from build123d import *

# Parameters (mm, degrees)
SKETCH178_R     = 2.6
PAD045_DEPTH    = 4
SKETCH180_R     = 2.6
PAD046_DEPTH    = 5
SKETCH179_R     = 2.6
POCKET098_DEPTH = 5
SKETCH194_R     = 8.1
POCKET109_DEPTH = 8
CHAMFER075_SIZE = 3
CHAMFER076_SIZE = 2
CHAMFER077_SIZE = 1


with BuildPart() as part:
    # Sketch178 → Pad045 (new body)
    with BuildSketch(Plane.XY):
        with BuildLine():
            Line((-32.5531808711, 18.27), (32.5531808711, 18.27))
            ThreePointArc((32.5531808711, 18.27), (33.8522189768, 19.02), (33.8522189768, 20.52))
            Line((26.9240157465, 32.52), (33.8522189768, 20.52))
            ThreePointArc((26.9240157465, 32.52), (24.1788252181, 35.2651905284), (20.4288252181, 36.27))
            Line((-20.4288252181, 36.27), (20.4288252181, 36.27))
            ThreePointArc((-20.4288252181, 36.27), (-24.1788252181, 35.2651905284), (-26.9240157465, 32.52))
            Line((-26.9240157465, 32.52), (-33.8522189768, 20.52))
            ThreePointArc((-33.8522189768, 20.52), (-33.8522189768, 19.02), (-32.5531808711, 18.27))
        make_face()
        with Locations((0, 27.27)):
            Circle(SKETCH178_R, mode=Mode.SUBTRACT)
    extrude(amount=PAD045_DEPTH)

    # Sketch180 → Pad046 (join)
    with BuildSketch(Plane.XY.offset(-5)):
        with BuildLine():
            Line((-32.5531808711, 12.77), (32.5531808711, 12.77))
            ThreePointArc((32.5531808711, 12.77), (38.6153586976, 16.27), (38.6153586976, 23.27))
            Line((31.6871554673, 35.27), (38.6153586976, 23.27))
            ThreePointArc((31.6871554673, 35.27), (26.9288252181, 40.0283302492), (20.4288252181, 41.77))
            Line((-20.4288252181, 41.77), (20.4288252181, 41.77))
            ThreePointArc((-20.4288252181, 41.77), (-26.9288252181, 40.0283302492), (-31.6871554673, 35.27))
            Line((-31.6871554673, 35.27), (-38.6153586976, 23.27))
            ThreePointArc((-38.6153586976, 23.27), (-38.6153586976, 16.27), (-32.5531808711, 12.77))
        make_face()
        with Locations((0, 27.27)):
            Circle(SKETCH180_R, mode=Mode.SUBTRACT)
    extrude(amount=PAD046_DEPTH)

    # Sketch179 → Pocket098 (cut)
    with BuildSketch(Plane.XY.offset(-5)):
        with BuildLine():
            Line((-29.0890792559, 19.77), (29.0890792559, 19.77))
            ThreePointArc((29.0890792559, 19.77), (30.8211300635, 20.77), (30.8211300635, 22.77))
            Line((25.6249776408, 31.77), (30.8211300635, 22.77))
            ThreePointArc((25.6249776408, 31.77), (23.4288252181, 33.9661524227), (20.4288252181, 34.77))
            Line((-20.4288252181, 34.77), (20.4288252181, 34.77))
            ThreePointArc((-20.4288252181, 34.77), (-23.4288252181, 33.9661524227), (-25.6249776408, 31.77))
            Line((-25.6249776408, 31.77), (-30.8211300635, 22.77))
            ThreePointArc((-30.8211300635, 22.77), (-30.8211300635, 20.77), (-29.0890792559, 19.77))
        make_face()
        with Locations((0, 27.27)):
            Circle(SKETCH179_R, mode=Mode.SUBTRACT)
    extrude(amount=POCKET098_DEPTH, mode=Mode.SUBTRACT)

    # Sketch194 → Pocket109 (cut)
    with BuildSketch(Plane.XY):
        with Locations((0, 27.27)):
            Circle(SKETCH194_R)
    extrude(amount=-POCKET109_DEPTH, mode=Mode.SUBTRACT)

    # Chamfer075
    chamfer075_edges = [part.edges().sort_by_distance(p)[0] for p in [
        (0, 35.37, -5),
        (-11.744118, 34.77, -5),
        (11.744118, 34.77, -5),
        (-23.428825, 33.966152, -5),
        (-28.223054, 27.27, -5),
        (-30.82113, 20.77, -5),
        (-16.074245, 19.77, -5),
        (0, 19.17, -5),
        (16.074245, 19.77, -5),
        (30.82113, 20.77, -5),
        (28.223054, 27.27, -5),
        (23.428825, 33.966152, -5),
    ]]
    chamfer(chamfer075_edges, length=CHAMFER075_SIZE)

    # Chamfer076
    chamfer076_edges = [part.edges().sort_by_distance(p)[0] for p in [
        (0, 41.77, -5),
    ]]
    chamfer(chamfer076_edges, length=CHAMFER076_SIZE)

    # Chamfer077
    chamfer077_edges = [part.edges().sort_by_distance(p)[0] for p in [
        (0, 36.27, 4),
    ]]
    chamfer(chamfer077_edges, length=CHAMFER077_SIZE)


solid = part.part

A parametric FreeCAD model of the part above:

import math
import FreeCAD as App
import Part
import Sketcher
Q = App.Units.Quantity


def edges_at(feature, points):
    """Names of the edges that pass closest to the given points."""
    edges = feature.Shape.Edges
    near = lambda p: min(range(len(edges)), key=lambda i: edges[i].distToShape(Part.Vertex(*p))[0])
    return sorted({f"Edge{near(p) + 1}" for p in points})

doc = App.newDocument("Part")
body = doc.addObject("PartDesign::Body", "Body")

# Sketch on XY plane
sketch1 = doc.addObject("Sketcher::SketchObject", "Sketch")
body.addObject(sketch1)
sketch1.AttachmentSupport = (doc.XY_Plane, [""])
sketch1.MapMode = "FlatFace"
sketch1.addGeometry([
    Part.LineSegment(App.Vector(-32.553181, 18.27, 0), App.Vector(32.553181, 18.27, 0)),  # 0
    Part.ArcOfCircle(Part.Circle(App.Vector(32.553181, 19.77, 0), App.Vector(0, 0, 1), 1.5), math.radians(-90), math.radians(30)),  # 1
    Part.LineSegment(App.Vector(33.852219, 20.52, 0), App.Vector(26.924016, 32.52, 0)),  # 2
    Part.ArcOfCircle(Part.Circle(App.Vector(20.428825, 28.77, 0), App.Vector(0, 0, 1), 7.5), math.radians(30), math.radians(90)),  # 3
    Part.LineSegment(App.Vector(20.428825, 36.27, 0), App.Vector(-20.428825, 36.27, 0)),  # 4
    Part.ArcOfCircle(Part.Circle(App.Vector(-20.428825, 28.77, 0), App.Vector(0, 0, 1), 7.5), math.radians(90), math.radians(150)),  # 5
    Part.LineSegment(App.Vector(-26.924016, 32.52, 0), App.Vector(-33.852219, 20.52, 0)),  # 6
    Part.ArcOfCircle(Part.Circle(App.Vector(-32.553181, 19.77, 0), App.Vector(0, 0, 1), 1.5), math.radians(150), math.radians(270)),  # 7
    Part.Circle(App.Vector(0, 27.27, 0), App.Vector(0, 0, 1), 2.6),  # 8
], False)
sketch1.addConstraint([
    Sketcher.Constraint("Tangent", 0, 2, 1, 1),
    Sketcher.Constraint("Tangent", 1, 2, 2, 1),
    Sketcher.Constraint("Tangent", 2, 2, 3, 1),
    Sketcher.Constraint("Tangent", 3, 2, 4, 1),
    Sketcher.Constraint("Tangent", 4, 2, 5, 1),
    Sketcher.Constraint("Tangent", 5, 2, 6, 1),
    Sketcher.Constraint("Tangent", 6, 2, 7, 1),
    Sketcher.Constraint("Tangent", 7, 2, 0, 1),
    Sketcher.Constraint("Horizontal", 0),
    Sketcher.Constraint("Horizontal", 4),
    Sketcher.Constraint("Equal", 3, 5),
    Sketcher.Constraint("Equal", 1, 7),
    Sketcher.Constraint("Symmetric", 2, 2, 5, 2, -2),
    Sketcher.Constraint("PointOnObject", 8, 3, -2),
    Sketcher.Constraint("Diameter", 8, Q("5.2 mm")),
    Sketcher.Constraint("Radius", 1, Q("1.5 mm")),
    Sketcher.Constraint("Radius", 3, Q("7.5 mm")),
    Sketcher.Constraint("Angle", 2, Q("120 deg")),
    Sketcher.Constraint("DistanceY", 1, 3, 3, 3, Q("9 mm")),
    Sketcher.Constraint("DistanceY", 0, 2, 8, 3, Q("9 mm")),
    Sketcher.Constraint("DistanceY", -1, 1, 1, 3, Q("19.77 mm")),
    Sketcher.Constraint("DistanceX", 0, 1, 0, 2, Q("65.106362 mm")),
])
pad1 = doc.addObject("PartDesign::Pad", "Pad")
body.addObject(pad1)
pad1.Profile = sketch1
pad1.Length = 4

# Sketch on XY plane
sketch2 = doc.addObject("Sketcher::SketchObject", "Sketch001")
body.addObject(sketch2)
sketch2.AttachmentSupport = (doc.XY_Plane, [""])
sketch2.MapMode = "FlatFace"
sketch2.AttachmentOffset = App.Placement(App.Vector(0, 0, -5), App.Rotation())
sketch2.addGeometry([
    Part.LineSegment(App.Vector(-32.553181, 12.77, 0), App.Vector(32.553181, 12.77, 0)),  # 0
    Part.ArcOfCircle(Part.Circle(App.Vector(32.553181, 19.77, 0), App.Vector(0, 0, 1), 7), math.radians(-90), math.radians(30)),  # 1
    Part.LineSegment(App.Vector(38.615359, 23.27, 0), App.Vector(31.687155, 35.27, 0)),  # 2
    Part.ArcOfCircle(Part.Circle(App.Vector(20.428825, 28.77, 0), App.Vector(0, 0, 1), 13), math.radians(30), math.radians(90)),  # 3
    Part.LineSegment(App.Vector(20.428825, 41.77, 0), App.Vector(-20.428825, 41.77, 0)),  # 4
    Part.ArcOfCircle(Part.Circle(App.Vector(-20.428825, 28.77, 0), App.Vector(0, 0, 1), 13), math.radians(90), math.radians(150)),  # 5
    Part.LineSegment(App.Vector(-31.687155, 35.27, 0), App.Vector(-38.615359, 23.27, 0)),  # 6
    Part.ArcOfCircle(Part.Circle(App.Vector(-32.553181, 19.77, 0), App.Vector(0, 0, 1), 7), math.radians(150), math.radians(270)),  # 7
    Part.Circle(App.Vector(0, 27.27, 0), App.Vector(0, 0, 1), 2.6),  # 8
], False)
sketch2.addConstraint([
    Sketcher.Constraint("Tangent", 0, 2, 1, 1),
    Sketcher.Constraint("Tangent", 1, 2, 2, 1),
    Sketcher.Constraint("Tangent", 2, 2, 3, 1),
    Sketcher.Constraint("Tangent", 3, 2, 4, 1),
    Sketcher.Constraint("Tangent", 4, 2, 5, 1),
    Sketcher.Constraint("Tangent", 5, 2, 6, 1),
    Sketcher.Constraint("Tangent", 6, 2, 7, 1),
    Sketcher.Constraint("Tangent", 7, 2, 0, 1),
    Sketcher.Constraint("Horizontal", 0),
    Sketcher.Constraint("Horizontal", 4),
    Sketcher.Constraint("Equal", 3, 5),
    Sketcher.Constraint("Equal", 1, 7),
    Sketcher.Constraint("Symmetric", 2, 2, 5, 2, -2),
    Sketcher.Constraint("PointOnObject", 8, 3, -2),
    Sketcher.Constraint("Radius", 1, Q("7 mm")),
    Sketcher.Constraint("Radius", 3, Q("13 mm")),
    Sketcher.Constraint("Diameter", 8, Q("5.2 mm")),
    Sketcher.Constraint("Angle", 2, Q("120 deg")),
    Sketcher.Constraint("DistanceY", 1, 3, 3, 3, Q("9 mm")),
    Sketcher.Constraint("DistanceY", 1, 2, 8, 3, Q("4 mm")),
    Sketcher.Constraint("DistanceY", -1, 1, 1, 3, Q("19.77 mm")),
    Sketcher.Constraint("DistanceX", 0, 1, 0, 2, Q("65.106362 mm")),
])
pad2 = doc.addObject("PartDesign::Pad", "Pad001")
body.addObject(pad2)
pad2.Profile = sketch2
pad2.Length = 5

# Sketch on XY plane
sketch3 = doc.addObject("Sketcher::SketchObject", "Sketch002")
body.addObject(sketch3)
sketch3.AttachmentSupport = (doc.XY_Plane, [""])
sketch3.MapMode = "FlatFace"
sketch3.AttachmentOffset = App.Placement(App.Vector(0, 0, -5), App.Rotation())
sketch3.addGeometry([
    Part.LineSegment(App.Vector(-29.089079, 19.77, 0), App.Vector(29.089079, 19.77, 0)),  # 0
    Part.ArcOfCircle(Part.Circle(App.Vector(29.089079, 21.77, 0), App.Vector(0, 0, 1), 2), math.radians(-90), math.radians(30)),  # 1
    Part.LineSegment(App.Vector(30.82113, 22.77, 0), App.Vector(25.624978, 31.77, 0)),  # 2
    Part.ArcOfCircle(Part.Circle(App.Vector(20.428825, 28.77, 0), App.Vector(0, 0, 1), 6), math.radians(30), math.radians(90)),  # 3
    Part.LineSegment(App.Vector(20.428825, 34.77, 0), App.Vector(-20.428825, 34.77, 0)),  # 4
    Part.ArcOfCircle(Part.Circle(App.Vector(-20.428825, 28.77, 0), App.Vector(0, 0, 1), 6), math.radians(90), math.radians(150)),  # 5
    Part.LineSegment(App.Vector(-25.624978, 31.77, 0), App.Vector(-30.82113, 22.77, 0)),  # 6
    Part.ArcOfCircle(Part.Circle(App.Vector(-29.089079, 21.77, 0), App.Vector(0, 0, 1), 2), math.radians(150), math.radians(270)),  # 7
    Part.Circle(App.Vector(0, 27.27, 0), App.Vector(0, 0, 1), 2.6),  # 8
], False)
sketch3.addConstraint([
    Sketcher.Constraint("Tangent", 0, 2, 1, 1),
    Sketcher.Constraint("Tangent", 1, 2, 2, 1),
    Sketcher.Constraint("Tangent", 2, 2, 3, 1),
    Sketcher.Constraint("Tangent", 3, 2, 4, 1),
    Sketcher.Constraint("Tangent", 4, 2, 5, 1),
    Sketcher.Constraint("Tangent", 5, 2, 6, 1),
    Sketcher.Constraint("Tangent", 6, 2, 7, 1),
    Sketcher.Constraint("Tangent", 7, 2, 0, 1),
    Sketcher.Constraint("Horizontal", 0),
    Sketcher.Constraint("Horizontal", 4),
    Sketcher.Constraint("Equal", 3, 5),
    Sketcher.Constraint("Equal", 1, 7),
    Sketcher.Constraint("Symmetric", 2, 2, 5, 2, -2),
    Sketcher.Constraint("PointOnObject", 8, 3, -2),
    Sketcher.Constraint("Radius", 1, Q("2 mm")),
    Sketcher.Constraint("Radius", 3, Q("6 mm")),
    Sketcher.Constraint("Diameter", 8, Q("5.2 mm")),
    Sketcher.Constraint("Angle", 2, Q("120 deg")),
    Sketcher.Constraint("DistanceY", 1, 3, 3, 3, Q("7 mm")),
    Sketcher.Constraint("DistanceY", 8, 3, 3, 3, Q("1.5 mm")),
    Sketcher.Constraint("DistanceY", -1, 1, 1, 3, Q("21.77 mm")),
    Sketcher.Constraint("DistanceX", 0, 1, 0, 2, Q("58.178159 mm")),
])
pocket1 = doc.addObject("PartDesign::Pocket", "Pocket")
body.addObject(pocket1)
pocket1.Profile = sketch3
pocket1.Length = 5
pocket1.Reversed = True

# Sketch on XY plane
sketch4 = doc.addObject("Sketcher::SketchObject", "Sketch003")
body.addObject(sketch4)
sketch4.AttachmentSupport = (doc.XY_Plane, [""])
sketch4.MapMode = "FlatFace"
sketch4.addGeometry(Part.Circle(App.Vector(0, 27.27, 0), App.Vector(0, 0, 1), 8.1), False)
sketch4.addConstraint([
    Sketcher.Constraint("PointOnObject", 0, 3, -2),
    Sketcher.Constraint("Diameter", 0, Q("16.2 mm")),
    Sketcher.Constraint("DistanceY", -1, 1, 0, 3, Q("27.27 mm")),
])
pocket2 = doc.addObject("PartDesign::Pocket", "Pocket001")
body.addObject(pocket2)
pocket2.Profile = sketch4
pocket2.Length = 8
doc.recompute()

chamfer = doc.addObject("PartDesign::Chamfer", "Chamfer")
body.addObject(chamfer)
chamfer.Base = (pocket2, edges_at(pocket2, [
    (0, 35.37, -5),
    (-11.744, 34.77, -5),
    (11.744, 34.77, -5),
    (-23.429, 33.966, -5),
    (-28.223, 27.27, -5),
    (-30.821, 20.77, -5),
    (-16.074, 19.77, -5),
    (0, 19.17, -5),
    (16.074, 19.77, -5),
    (30.821, 20.77, -5),
    (28.223, 27.27, -5),
    (23.429, 33.966, -5),
]))
chamfer.Size = 3
doc.recompute()

chamfer2 = doc.addObject("PartDesign::Chamfer", "Chamfer001")
body.addObject(chamfer2)
chamfer2.Base = (chamfer, edges_at(chamfer, [(0, 41.77, -5)]))
chamfer2.Size = 2
doc.recompute()

chamfer3 = doc.addObject("PartDesign::Chamfer", "Chamfer002")
body.addObject(chamfer3)
chamfer3.Base = (chamfer2, edges_at(chamfer2, [(0, 36.27, 4)]))
chamfer3.Size = 1

doc.recompute()
